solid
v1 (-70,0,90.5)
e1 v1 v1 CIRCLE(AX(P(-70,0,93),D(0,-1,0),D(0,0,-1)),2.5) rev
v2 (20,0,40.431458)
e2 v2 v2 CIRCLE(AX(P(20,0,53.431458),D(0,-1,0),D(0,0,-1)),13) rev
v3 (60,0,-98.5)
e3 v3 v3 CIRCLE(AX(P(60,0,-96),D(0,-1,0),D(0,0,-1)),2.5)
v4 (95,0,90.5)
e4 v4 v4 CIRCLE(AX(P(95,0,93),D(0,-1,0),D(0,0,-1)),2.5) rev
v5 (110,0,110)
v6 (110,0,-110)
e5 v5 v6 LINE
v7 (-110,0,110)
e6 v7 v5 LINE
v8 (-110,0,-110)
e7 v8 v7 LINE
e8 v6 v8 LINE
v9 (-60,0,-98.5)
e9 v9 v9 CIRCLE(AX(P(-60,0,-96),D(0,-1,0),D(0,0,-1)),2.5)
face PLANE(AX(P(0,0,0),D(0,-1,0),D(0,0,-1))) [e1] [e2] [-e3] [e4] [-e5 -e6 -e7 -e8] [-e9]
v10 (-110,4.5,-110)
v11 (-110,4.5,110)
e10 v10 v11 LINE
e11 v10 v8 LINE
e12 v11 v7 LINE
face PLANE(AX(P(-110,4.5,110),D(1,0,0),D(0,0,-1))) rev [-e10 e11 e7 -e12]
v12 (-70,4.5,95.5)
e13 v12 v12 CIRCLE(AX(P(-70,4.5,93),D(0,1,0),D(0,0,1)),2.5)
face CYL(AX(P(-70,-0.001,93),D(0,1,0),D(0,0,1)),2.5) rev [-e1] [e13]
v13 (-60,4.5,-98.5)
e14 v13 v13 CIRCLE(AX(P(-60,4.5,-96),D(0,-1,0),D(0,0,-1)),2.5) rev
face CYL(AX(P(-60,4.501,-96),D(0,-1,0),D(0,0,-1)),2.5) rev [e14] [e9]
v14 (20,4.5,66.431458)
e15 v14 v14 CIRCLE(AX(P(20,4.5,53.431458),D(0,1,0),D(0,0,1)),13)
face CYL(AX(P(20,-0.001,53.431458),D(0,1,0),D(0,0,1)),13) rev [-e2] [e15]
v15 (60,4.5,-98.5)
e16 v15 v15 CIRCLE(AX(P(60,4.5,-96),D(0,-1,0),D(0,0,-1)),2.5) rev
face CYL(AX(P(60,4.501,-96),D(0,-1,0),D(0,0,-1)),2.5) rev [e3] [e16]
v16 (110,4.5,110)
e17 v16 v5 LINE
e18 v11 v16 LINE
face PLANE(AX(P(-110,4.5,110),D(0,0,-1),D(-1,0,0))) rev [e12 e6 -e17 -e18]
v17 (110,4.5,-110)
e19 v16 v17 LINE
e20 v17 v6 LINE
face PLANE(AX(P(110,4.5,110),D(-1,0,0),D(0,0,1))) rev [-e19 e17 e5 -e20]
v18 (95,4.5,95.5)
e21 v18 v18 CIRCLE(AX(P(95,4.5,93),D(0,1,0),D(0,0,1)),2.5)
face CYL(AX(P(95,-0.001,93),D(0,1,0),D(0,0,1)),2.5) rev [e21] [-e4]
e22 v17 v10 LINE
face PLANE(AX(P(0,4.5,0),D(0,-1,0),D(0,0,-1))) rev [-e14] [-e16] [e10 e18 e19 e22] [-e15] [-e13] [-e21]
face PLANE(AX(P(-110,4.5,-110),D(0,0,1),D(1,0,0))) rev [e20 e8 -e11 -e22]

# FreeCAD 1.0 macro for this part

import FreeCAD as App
import Part
import Sketcher
Q = App.Units.Quantity


def add_polygon(sketch, points):
    """Adds a closed chain of lines whose ends are joined by coincident constraints."""
    first, n = sketch.GeometryCount, len(points)
    for a, b in zip(points, points[1:] + points[:1]):
        sketch.addGeometry(Part.LineSegment(App.Vector(*a, 0), App.Vector(*b, 0)), False)
    for i in range(n):
        sketch.addConstraint(Sketcher.Constraint("Coincident", first + i, 2, first + (i + 1) % n, 1))

doc = App.newDocument("Part")
body = doc.addObject("PartDesign::Body", "Body")

sketch1 = body.newObject("Sketcher::SketchObject", "Sketch")
sketch1.AttachmentSupport = (doc.getObject("XZ_Plane"), [""])
sketch1.MapMode = "FlatFace"
add_polygon(sketch1, [(-110, -110), (-110, 110), (110, 110), (110, -110)])
sketch1.addConstraint(Sketcher.Constraint("Vertical", 0))
sketch1.addConstraint(Sketcher.Constraint("Horizontal", 1))
sketch1.addConstraint(Sketcher.Constraint("Vertical", 2))
sketch1.addConstraint(Sketcher.Constraint("Horizontal", 3))
sketch1.addConstraint(Sketcher.Constraint("Symmetric", 0, 2, 2, 2, -1, 1))
sketch1.addConstraint(Sketcher.Constraint("Equal", 3, 0))
sketch1.addConstraint(Sketcher.Constraint("DistanceX", 1, 1, 1, 2, Q("220 mm")))
pad1 = body.newObject("PartDesign::Pad", "Pad")
pad1.Profile = sketch1
pad1.Length = 4.5
pad1.Reversed = True

sketch2 = body.newObject("Sketcher::SketchObject", "Sketch001")
sketch2.AttachmentSupport = (doc.getObject("XZ_Plane"), [""])
sketch2.MapMode = "FlatFace"
sketch2.AttachmentOffset = App.Placement(App.Vector(0, 0, -4.5), App.Rotation())
sketch2.addGeometry(Part.Circle(App.Vector(20, 53.431458, 0), App.Vector(0, 0, 1), 13), False)
sketch2.addConstraint(Sketcher.Constraint("Diameter", 0, Q("26 mm")))
sketch2.addConstraint(Sketcher.Constraint("DistanceX", -1, 1, 0, 3, Q("20 mm")))
sketch2.addConstraint(Sketcher.Constraint("DistanceY", -1, 1, 0, 3, Q("53.431458 mm")))
pocket1 = body.newObject("PartDesign::Pocket", "Pocket")
pocket1.Profile = sketch2
pocket1.Type = "UpToFirst"
pocket1.Reversed = True

sketch3 = body.newObject("Sketcher::SketchObject", "Sketch002")
sketch3.AttachmentSupport = (doc.getObject("XZ_Plane"), [""])
sketch3.MapMode = "FlatFace"
sketch3.AttachmentOffset = App.Placement(App.Vector(0, 0, -4.5), App.Rotation())
sketch3.addGeometry(Part.Circle(App.Vector(95, 93, 0), App.Vector(0, 0, 1), 2.5), False)
sketch3.addConstraint(Sketcher.Constraint("Diameter", 0, Q("5 mm")))
sketch3.addConstraint(Sketcher.Constraint("DistanceX", -1, 1, 0, 3, Q("95 mm")))
sketch3.addConstraint(Sketcher.Constraint("DistanceY", -1, 1, 0, 3, Q("93 mm")))
pocket2 = body.newObject("PartDesign::Pocket", "Pocket001")
pocket2.Profile = sketch3
pocket2.Type = "UpToFirst"
pocket2.Reversed = True

sketch4 = body.newObject("Sketcher::SketchObject", "Sketch003")
sketch4.AttachmentSupport = (doc.getObject("XZ_Plane"), [""])
sketch4.MapMode = "FlatFace"
sketch4.AttachmentOffset = App.Placement(App.Vector(0, 0, -4.5), App.Rotation())
sketch4.addGeometry(Part.Circle(App.Vector(-70, 93, 0), App.Vector(0, 0, 1), 2.5), False)
sketch4.addConstraint(Sketcher.Constraint("Diameter", 0, Q("5 mm")))
sketch4.addConstraint(Sketcher.Constraint("DistanceX", 0, 3, -1, 1, Q("70 mm")))
sketch4.addConstraint(Sketcher.Constraint("DistanceY", -1, 1, 0, 3, Q("93 mm")))
pocket3 = body.newObject("PartDesign::Pocket", "Pocket002")
pocket3.Profile = sketch4
pocket3.Type = "UpToFirst"
pocket3.Reversed = True

sketch5 = body.newObject("Sketcher::SketchObject", "Sketch004")
sketch5.AttachmentSupport = (doc.getObject("XZ_Plane"), [""])
sketch5.MapMode = "FlatFace"
sketch5.addGeometry(Part.Circle(App.Vector(60, -96, 0), App.Vector(0, 0, 1), 2.5), False)
sketch5.addConstraint(Sketcher.Constraint("Diameter", 0, Q("5 mm")))
sketch5.addConstraint(Sketcher.Constraint("DistanceX", -1, 1, 0, 3, Q("60 mm")))
sketch5.addConstraint(Sketcher.Constraint("DistanceY", 0, 3, -1, 1, Q("96 mm")))
pocket4 = body.newObject("PartDesign::Pocket", "Pocket003")
pocket4.Profile = sketch5
pocket4.Type = "UpToFirst"

sketch6 = body.newObject("Sketcher::SketchObject", "Sketch005")
sketch6.AttachmentSupport = (doc.getObject("XZ_Plane"), [""])
sketch6.MapMode = "FlatFace"
sketch6.addGeometry(Part.Circle(App.Vector(-60, -96, 0), App.Vector(0, 0, 1), 2.5), False)
sketch6.addConstraint(Sketcher.Constraint("Diameter", 0, Q("5 mm")))
sketch6.addConstraint(Sketcher.Constraint("DistanceX", 0, 3, -1, 1, Q("60 mm")))
sketch6.addConstraint(Sketcher.Constraint("DistanceY", 0, 3, -1, 1, Q("96 mm")))
pocket5 = body.newObject("PartDesign::Pocket", "Pocket004")
pocket5.Profile = sketch6
pocket5.Type = "UpToFirst"

doc.recompute()
